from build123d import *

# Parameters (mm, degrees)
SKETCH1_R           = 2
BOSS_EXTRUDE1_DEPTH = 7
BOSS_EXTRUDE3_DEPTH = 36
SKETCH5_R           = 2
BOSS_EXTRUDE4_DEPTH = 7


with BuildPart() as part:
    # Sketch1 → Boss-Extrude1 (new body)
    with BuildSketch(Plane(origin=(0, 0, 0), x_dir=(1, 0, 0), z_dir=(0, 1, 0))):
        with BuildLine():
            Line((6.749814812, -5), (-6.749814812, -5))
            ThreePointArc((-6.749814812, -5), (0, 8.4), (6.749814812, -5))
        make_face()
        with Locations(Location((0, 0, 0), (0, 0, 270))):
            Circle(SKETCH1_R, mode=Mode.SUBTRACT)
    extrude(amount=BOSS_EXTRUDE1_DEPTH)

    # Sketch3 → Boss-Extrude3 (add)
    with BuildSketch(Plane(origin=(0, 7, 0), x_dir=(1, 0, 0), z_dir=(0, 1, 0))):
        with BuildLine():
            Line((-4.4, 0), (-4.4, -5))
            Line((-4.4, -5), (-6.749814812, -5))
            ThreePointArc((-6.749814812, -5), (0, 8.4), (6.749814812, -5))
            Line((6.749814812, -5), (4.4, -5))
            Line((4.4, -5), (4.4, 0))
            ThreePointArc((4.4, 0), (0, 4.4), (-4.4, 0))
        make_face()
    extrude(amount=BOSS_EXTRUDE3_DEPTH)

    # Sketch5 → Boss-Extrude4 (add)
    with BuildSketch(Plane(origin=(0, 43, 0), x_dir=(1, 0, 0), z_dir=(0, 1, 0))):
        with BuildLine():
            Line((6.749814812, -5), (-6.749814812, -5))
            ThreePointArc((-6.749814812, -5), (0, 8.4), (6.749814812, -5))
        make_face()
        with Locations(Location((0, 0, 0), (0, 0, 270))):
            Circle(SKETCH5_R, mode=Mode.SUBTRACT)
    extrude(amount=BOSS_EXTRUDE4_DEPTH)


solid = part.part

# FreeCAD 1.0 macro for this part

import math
import FreeCAD as App
import Part
import Sketcher
from FreeCAD import Vector

doc = App.newDocument("Part")
body = doc.addObject("PartDesign::Body", "Body")

# Sketch on XZ plane
sketch1 = body.newObject("Sketcher::SketchObject", "Sketch")
sketch1.AttachmentSupport = (doc.getObject("XZ_Plane"), [""])
sketch1.MapMode = "FlatFace"
sketch1.addGeometry(Part.LineSegment(Vector(-6.7, 5, 0), Vector(6.7, 5, 0)), False)
sketch1.addGeometry(Part.ArcOfCircle(Part.Circle(Vector(0, 0, 0), Vector(0, 0, 1), 8.4), math.radians(143), math.radians(397)), False)
sketch1.addGeometry(Part.Circle(Vector(0, 0, 0), Vector(0, 0, 1), 2), False)
sketch1.addConstraint(Sketcher.Constraint("Coincident", 0, 1, 1, 1))
sketch1.addConstraint(Sketcher.Constraint("Coincident", 1, 2, 0, 2))
sketch1.addConstraint(Sketcher.Constraint("Horizontal", 0))
sketch1.addConstraint(Sketcher.Constraint("Coincident", 1, 3, -1, 1))
sketch1.addConstraint(Sketcher.Constraint("Coincident", 2, 3, -1, 1))
sketch1.addConstraint(Sketcher.Constraint("Diameter", 2, 4.0))
sketch1.addConstraint(Sketcher.Constraint("Radius", 1, 8.4))
sketch1.addConstraint(Sketcher.Constraint("DistanceY", -1, 1, 0, 1, 5.0))
pad1 = body.newObject("PartDesign::Pad", "Pad")
pad1.Profile = sketch1
pad1.Length = 7
pad1.Reversed = True

# Sketch on XZ plane
sketch2 = body.newObject("Sketcher::SketchObject", "Sketch001")
sketch2.AttachmentSupport = (doc.getObject("XZ_Plane"), [""])
sketch2.MapMode = "FlatFace"
sketch2.AttachmentOffset = App.Placement(Vector(0, 0, -7), App.Rotation())
sketch2.addGeometry(Part.LineSegment(Vector(-4.4, 5, 0), Vector(-4.4, 0, 0)), False)
sketch2.addGeometry(Part.ArcOfCircle(Part.Circle(Vector(0, 0, 0), Vector(0, 0, 1), 4.4), math.radians(180), math.radians(360)), False)
sketch2.addGeometry(Part.LineSegment(Vector(4.4, 0, 0), Vector(4.4, 5, 0)), False)
sketch2.addGeometry(Part.LineSegment(Vector(4.4, 5, 0), Vector(6.7, 5, 0)), False)
sketch2.addGeometry(Part.ArcOfCircle(Part.Circle(Vector(0, 0, 0), Vector(0, 0, 1), 8.4), math.radians(143), math.radians(397)), False)
sketch2.addGeometry(Part.LineSegment(Vector(-6.7, 5, 0), Vector(-4.4, 5, 0)), False)
sketch2.addConstraint(Sketcher.Constraint("Tangent", 0, 2, 1, 1))
sketch2.addConstraint(Sketcher.Constraint("Tangent", 1, 2, 2, 1))
sketch2.addConstraint(Sketcher.Constraint("Coincident", 2, 2, 3, 1))
sketch2.addConstraint(Sketcher.Constraint("Coincident", 3, 2, 4, 2))
sketch2.addConstraint(Sketcher.Constraint("Coincident", 4, 1, 5, 1))
sketch2.addConstraint(Sketcher.Constraint("Coincident", 5, 2, 0, 1))
sketch2.addConstraint(Sketcher.Constraint("Vertical", 0))
sketch2.addConstraint(Sketcher.Constraint("Vertical", 2))
sketch2.addConstraint(Sketcher.Constraint("Horizontal", 3))
sketch2.addConstraint(Sketcher.Constraint("Horizontal", 5))
sketch2.addConstraint(Sketcher.Constraint("Coincident", 1, 3, -1, 1))
sketch2.addConstraint(Sketcher.Constraint("Coincident", 4, 3, -1, 1))
sketch2.addConstraint(Sketcher.Constraint("Horizontal", 3, 2, 4, 1))
sketch2.addConstraint(Sketcher.Constraint("Radius", 1, 4.4))
sketch2.addConstraint(Sketcher.Constraint("Radius", 4, 8.4))
sketch2.addConstraint(Sketcher.Constraint("DistanceY", 0, 2, 0, 1, 5.0))
pad2 = body.newObject("PartDesign::Pad", "Pad001")
pad2.Profile = sketch2
pad2.Length = 36
pad2.Reversed = True

# Sketch on XZ plane
sketch3 = body.newObject("Sketcher::SketchObject", "Sketch002")
sketch3.AttachmentSupport = (doc.getObject("XZ_Plane"), [""])
sketch3.MapMode = "FlatFace"
sketch3.AttachmentOffset = App.Placement(Vector(0, 0, -43), App.Rotation())
sketch3.addGeometry(Part.LineSegment(Vector(-6.7, 5, 0), Vector(6.7, 5, 0)), False)
sketch3.addGeometry(Part.ArcOfCircle(Part.Circle(Vector(0, 0, 0), Vector(0, 0, 1), 8.4), math.radians(143), math.radians(397)), False)
sketch3.addGeometry(Part.Circle(Vector(0, 0, 0), Vector(0, 0, 1), 2), False)
sketch3.addConstraint(Sketcher.Constraint("Coincident", 0, 1, 1, 1))
sketch3.addConstraint(Sketcher.Constraint("Coincident", 1, 2, 0, 2))
sketch3.addConstraint(Sketcher.Constraint("Horizontal", 0))
sketch3.addConstraint(Sketcher.Constraint("Coincident", 1, 3, -1, 1))
sketch3.addConstraint(Sketcher.Constraint("Coincident", 2, 3, -1, 1))
sketch3.addConstraint(Sketcher.Constraint("Diameter", 2, 4.0))
sketch3.addConstraint(Sketcher.Constraint("Radius", 1, 8.4))
sketch3.addConstraint(Sketcher.Constraint("DistanceY", -1, 1, 0, 1, 5.0))
pad3 = body.newObject("PartDesign::Pad", "Pad002")
pad3.Profile = sketch3
pad3.Length = 7
pad3.Reversed = True

doc.recompute()
